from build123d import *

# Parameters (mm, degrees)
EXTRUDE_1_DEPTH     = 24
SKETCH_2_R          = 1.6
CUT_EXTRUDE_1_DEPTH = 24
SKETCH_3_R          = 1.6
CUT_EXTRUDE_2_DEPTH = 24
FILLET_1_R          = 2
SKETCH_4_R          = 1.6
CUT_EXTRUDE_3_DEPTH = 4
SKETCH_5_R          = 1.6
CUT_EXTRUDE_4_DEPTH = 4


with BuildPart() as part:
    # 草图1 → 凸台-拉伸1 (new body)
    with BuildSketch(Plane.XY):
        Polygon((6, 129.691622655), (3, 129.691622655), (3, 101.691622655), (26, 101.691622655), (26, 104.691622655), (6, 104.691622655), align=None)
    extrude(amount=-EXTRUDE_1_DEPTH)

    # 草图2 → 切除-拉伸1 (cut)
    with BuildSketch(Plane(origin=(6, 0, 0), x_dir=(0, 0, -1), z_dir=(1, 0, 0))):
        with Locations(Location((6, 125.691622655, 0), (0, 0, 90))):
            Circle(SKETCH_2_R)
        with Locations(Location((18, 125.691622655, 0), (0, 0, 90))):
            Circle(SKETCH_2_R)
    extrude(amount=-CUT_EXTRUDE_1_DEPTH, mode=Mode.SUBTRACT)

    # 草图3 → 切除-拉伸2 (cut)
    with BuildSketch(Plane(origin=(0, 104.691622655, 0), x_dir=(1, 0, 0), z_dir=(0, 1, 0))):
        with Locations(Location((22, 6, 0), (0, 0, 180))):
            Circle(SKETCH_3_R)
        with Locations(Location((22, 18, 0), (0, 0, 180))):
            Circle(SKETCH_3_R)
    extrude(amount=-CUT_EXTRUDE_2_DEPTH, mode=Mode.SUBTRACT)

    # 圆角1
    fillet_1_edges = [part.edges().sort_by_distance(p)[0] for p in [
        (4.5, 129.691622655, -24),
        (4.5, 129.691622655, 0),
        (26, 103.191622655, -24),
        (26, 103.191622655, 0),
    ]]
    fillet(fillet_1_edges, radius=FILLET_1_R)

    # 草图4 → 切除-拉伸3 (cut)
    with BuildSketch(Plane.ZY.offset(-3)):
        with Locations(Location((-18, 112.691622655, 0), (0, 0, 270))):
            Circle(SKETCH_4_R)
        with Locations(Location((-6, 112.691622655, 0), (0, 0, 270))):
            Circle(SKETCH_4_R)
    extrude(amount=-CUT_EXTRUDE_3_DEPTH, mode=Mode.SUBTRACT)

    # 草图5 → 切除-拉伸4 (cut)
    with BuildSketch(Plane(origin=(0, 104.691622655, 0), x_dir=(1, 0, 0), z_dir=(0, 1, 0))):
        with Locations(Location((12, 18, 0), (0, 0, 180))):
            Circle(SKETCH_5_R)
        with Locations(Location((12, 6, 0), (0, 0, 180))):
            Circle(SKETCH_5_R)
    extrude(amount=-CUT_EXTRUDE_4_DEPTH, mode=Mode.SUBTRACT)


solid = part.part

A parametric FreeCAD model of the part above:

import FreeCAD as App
import Part
import Sketcher


def edges_at(feature, points):
    """Names of the edges that pass closest to the given points."""
    edges = feature.Shape.Edges
    near = lambda p: min(range(len(edges)), key=lambda i: edges[i].distToShape(Part.Vertex(*p))[0])
    return sorted({f"Edge{near(p) + 1}" for p in points})

doc = App.newDocument("Part")
body = doc.addObject("PartDesign::Body", "Body")

# Sketch on XY plane
sketch1 = body.newObject("Sketcher::SketchObject", "Sketch")
sketch1.AttachmentSupport = (doc.getObject("XY_Plane"), [""])
sketch1.MapMode = "FlatFace"
sketch1.addGeometry(Part.LineSegment(App.Vector(6, 129.691623, 0), App.Vector(3, 129.691623, 0)), False)
sketch1.addGeometry(Part.LineSegment(App.Vector(3, 129.691623, 0), App.Vector(3, 101.691623, 0)), False)
sketch1.addGeometry(Part.LineSegment(App.Vector(3, 101.691623, 0), App.Vector(26, 101.691623, 0)), False)
sketch1.addGeometry(Part.LineSegment(App.Vector(26, 101.691623, 0), App.Vector(26, 104.691623, 0)), False)
sketch1.addGeometry(Part.LineSegment(App.Vector(26, 104.691623, 0), App.Vector(6, 104.691623, 0)), False)
sketch1.addGeometry(Part.LineSegment(App.Vector(6, 104.691623, 0), App.Vector(6, 129.691623, 0)), False)
sketch1.addConstraint(Sketcher.Constraint("Coincident", 0, 2, 1, 1))
sketch1.addConstraint(Sketcher.Constraint("Coincident", 1, 2, 2, 1))
sketch1.addConstraint(Sketcher.Constraint("Coincident", 2, 2, 3, 1))
sketch1.addConstraint(Sketcher.Constraint("Coincident", 3, 2, 4, 1))
sketch1.addConstraint(Sketcher.Constraint("Coincident", 4, 2, 5, 1))
sketch1.addConstraint(Sketcher.Constraint("Coincident", 5, 2, 0, 1))
sketch1.addConstraint(Sketcher.Constraint("Horizontal", 0))
sketch1.addConstraint(Sketcher.Constraint("Vertical", 1))
sketch1.addConstraint(Sketcher.Constraint("Horizontal", 2))
sketch1.addConstraint(Sketcher.Constraint("Vertical", 3))
sketch1.addConstraint(Sketcher.Constraint("Horizontal", 4))
sketch1.addConstraint(Sketcher.Constraint("Vertical", 5))
sketch1.addConstraint(Sketcher.Constraint("Equal", 0, 3))
sketch1.addConstraint(Sketcher.Constraint("DistanceX", 0, 2, 0, 1, 3.0))
sketch1.addConstraint(Sketcher.Constraint("DistanceX", 2, 1, 2, 2, 23.0))
sketch1.addConstraint(Sketcher.Constraint("DistanceY", 1, 2, 1, 1, 28.0))
sketch1.addConstraint(Sketcher.Constraint("DistanceX", -1, 1, 0, 2, 3.0))
sketch1.addConstraint(Sketcher.Constraint("DistanceY", -1, 1, 0, 2, 129.691623))
pad1 = body.newObject("PartDesign::Pad", "Pad")
pad1.Profile = sketch1
pad1.Length = 24
pad1.Reversed = True

# Sketch on YZ plane
sketch2 = body.newObject("Sketcher::SketchObject", "Sketch001")
sketch2.AttachmentSupport = (doc.getObject("YZ_Plane"), [""])
sketch2.MapMode = "FlatFace"
sketch2.AttachmentOffset = App.Placement(App.Vector(0, 0, 6), App.Rotation())
sketch2.addGeometry(Part.Circle(App.Vector(125.691623, -6, 0), App.Vector(0, 0, 1), 1.6), False)
sketch2.addGeometry(Part.Circle(App.Vector(125.691623, -18, 0), App.Vector(0, 0, 1), 1.6), False)
sketch2.addConstraint(Sketcher.Constraint("Equal", 0, 1))
sketch2.addConstraint(Sketcher.Constraint("Vertical", 0, 3, 1, 3))
sketch2.addConstraint(Sketcher.Constraint("Diameter", 0, 3.2))
sketch2.addConstraint(Sketcher.Constraint("DistanceY", 0, 3, -1, 1, 6.0))
sketch2.addConstraint(Sketcher.Constraint("DistanceY", 1, 3, -1, 1, 18.0))
sketch2.addConstraint(Sketcher.Constraint("DistanceX", -1, 1, 0, 3, 125.691623))
pocket1 = body.newObject("PartDesign::Pocket", "Pocket")
pocket1.Profile = sketch2
pocket1.Length = 24

# Sketch on XZ plane
sketch3 = body.newObject("Sketcher::SketchObject", "Sketch002")
sketch3.AttachmentSupport = (doc.getObject("XZ_Plane"), [""])
sketch3.MapMode = "FlatFace"
sketch3.AttachmentOffset = App.Placement(App.Vector(0, 0, -104.691623), App.Rotation())
sketch3.addGeometry(Part.Circle(App.Vector(22, -6, 0), App.Vector(0, 0, 1), 1.6), False)
sketch3.addGeometry(Part.Circle(App.Vector(22, -18, 0), App.Vector(0, 0, 1), 1.6), False)
sketch3.addConstraint(Sketcher.Constraint("Equal", 0, 1))
sketch3.addConstraint(Sketcher.Constraint("Vertical", 0, 3, 1, 3))
sketch3.addConstraint(Sketcher.Constraint("Diameter", 0, 3.2))
sketch3.addConstraint(Sketcher.Constraint("DistanceX", -1, 1, 0, 3, 22.0))
sketch3.addConstraint(Sketcher.Constraint("DistanceY", 0, 3, -1, 1, 6.0))
sketch3.addConstraint(Sketcher.Constraint("DistanceY", 1, 3, -1, 1, 18.0))
pocket2 = body.newObject("PartDesign::Pocket", "Pocket001")
pocket2.Profile = sketch3
pocket2.Length = 24
pocket2.Reversed = True
doc.recompute()

fillet = body.newObject("PartDesign::Fillet", "Fillet")
fillet.Base = (pocket2, edges_at(pocket2, [
    (4.5, 129.692, -24),
    (4.5, 129.692, 0),
    (26, 103.192, -24),
    (26, 103.192, 0),
]))
fillet.Radius = 2

# Sketch on YZ plane
sketch4 = body.newObject("Sketcher::SketchObject", "Sketch003")
sketch4.AttachmentSupport = (doc.getObject("YZ_Plane"), [""])
sketch4.MapMode = "FlatFace"
sketch4.AttachmentOffset = App.Placement(App.Vector(0, 0, 3), App.Rotation())
sketch4.addGeometry(Part.Circle(App.Vector(112.691623, -18, 0), App.Vector(0, 0, 1), 1.6), False)
sketch4.addGeometry(Part.Circle(App.Vector(112.691623, -6, 0), App.Vector(0, 0, 1), 1.6), False)
sketch4.addConstraint(Sketcher.Constraint("Equal", 0, 1))
sketch4.addConstraint(Sketcher.Constraint("Vertical", 0, 3, 1, 3))
sketch4.addConstraint(Sketcher.Constraint("Diameter", 0, 3.2))
sketch4.addConstraint(Sketcher.Constraint("DistanceY", 0, 3, -1, 1, 18.0))
sketch4.addConstraint(Sketcher.Constraint("DistanceY", 1, 3, -1, 1, 6.0))
sketch4.addConstraint(Sketcher.Constraint("DistanceX", -1, 1, 0, 3, 112.691623))
pocket3 = body.newObject("PartDesign::Pocket", "Pocket002")
pocket3.Profile = sketch4
pocket3.Length = 4
pocket3.Reversed = True

# Sketch on XZ plane
sketch5 = body.newObject("Sketcher::SketchObject", "Sketch004")
sketch5.AttachmentSupport = (doc.getObject("XZ_Plane"), [""])
sketch5.MapMode = "FlatFace"
sketch5.AttachmentOffset = App.Placement(App.Vector(0, 0, -104.691623), App.Rotation())
sketch5.addGeometry(Part.Circle(App.Vector(12, -18, 0), App.Vector(0, 0, 1), 1.6), False)
sketch5.addGeometry(Part.Circle(App.Vector(12, -6, 0), App.Vector(0, 0, 1), 1.6), False)
sketch5.addConstraint(Sketcher.Constraint("Equal", 0, 1))
sketch5.addConstraint(Sketcher.Constraint("Vertical", 0, 3, 1, 3))
sketch5.addConstraint(Sketcher.Constraint("Diameter", 0, 3.2))
sketch5.addConstraint(Sketcher.Constraint("DistanceX", -1, 1, 0, 3, 12.0))
sketch5.addConstraint(Sketcher.Constraint("DistanceY", 0, 3, -1, 1, 18.0))
sketch5.addConstraint(Sketcher.Constraint("DistanceY", 1, 3, -1, 1, 6.0))
pocket4 = body.newObject("PartDesign::Pocket", "Pocket003")
pocket4.Profile = sketch5
pocket4.Length = 4
pocket4.Reversed = True

doc.recompute()
